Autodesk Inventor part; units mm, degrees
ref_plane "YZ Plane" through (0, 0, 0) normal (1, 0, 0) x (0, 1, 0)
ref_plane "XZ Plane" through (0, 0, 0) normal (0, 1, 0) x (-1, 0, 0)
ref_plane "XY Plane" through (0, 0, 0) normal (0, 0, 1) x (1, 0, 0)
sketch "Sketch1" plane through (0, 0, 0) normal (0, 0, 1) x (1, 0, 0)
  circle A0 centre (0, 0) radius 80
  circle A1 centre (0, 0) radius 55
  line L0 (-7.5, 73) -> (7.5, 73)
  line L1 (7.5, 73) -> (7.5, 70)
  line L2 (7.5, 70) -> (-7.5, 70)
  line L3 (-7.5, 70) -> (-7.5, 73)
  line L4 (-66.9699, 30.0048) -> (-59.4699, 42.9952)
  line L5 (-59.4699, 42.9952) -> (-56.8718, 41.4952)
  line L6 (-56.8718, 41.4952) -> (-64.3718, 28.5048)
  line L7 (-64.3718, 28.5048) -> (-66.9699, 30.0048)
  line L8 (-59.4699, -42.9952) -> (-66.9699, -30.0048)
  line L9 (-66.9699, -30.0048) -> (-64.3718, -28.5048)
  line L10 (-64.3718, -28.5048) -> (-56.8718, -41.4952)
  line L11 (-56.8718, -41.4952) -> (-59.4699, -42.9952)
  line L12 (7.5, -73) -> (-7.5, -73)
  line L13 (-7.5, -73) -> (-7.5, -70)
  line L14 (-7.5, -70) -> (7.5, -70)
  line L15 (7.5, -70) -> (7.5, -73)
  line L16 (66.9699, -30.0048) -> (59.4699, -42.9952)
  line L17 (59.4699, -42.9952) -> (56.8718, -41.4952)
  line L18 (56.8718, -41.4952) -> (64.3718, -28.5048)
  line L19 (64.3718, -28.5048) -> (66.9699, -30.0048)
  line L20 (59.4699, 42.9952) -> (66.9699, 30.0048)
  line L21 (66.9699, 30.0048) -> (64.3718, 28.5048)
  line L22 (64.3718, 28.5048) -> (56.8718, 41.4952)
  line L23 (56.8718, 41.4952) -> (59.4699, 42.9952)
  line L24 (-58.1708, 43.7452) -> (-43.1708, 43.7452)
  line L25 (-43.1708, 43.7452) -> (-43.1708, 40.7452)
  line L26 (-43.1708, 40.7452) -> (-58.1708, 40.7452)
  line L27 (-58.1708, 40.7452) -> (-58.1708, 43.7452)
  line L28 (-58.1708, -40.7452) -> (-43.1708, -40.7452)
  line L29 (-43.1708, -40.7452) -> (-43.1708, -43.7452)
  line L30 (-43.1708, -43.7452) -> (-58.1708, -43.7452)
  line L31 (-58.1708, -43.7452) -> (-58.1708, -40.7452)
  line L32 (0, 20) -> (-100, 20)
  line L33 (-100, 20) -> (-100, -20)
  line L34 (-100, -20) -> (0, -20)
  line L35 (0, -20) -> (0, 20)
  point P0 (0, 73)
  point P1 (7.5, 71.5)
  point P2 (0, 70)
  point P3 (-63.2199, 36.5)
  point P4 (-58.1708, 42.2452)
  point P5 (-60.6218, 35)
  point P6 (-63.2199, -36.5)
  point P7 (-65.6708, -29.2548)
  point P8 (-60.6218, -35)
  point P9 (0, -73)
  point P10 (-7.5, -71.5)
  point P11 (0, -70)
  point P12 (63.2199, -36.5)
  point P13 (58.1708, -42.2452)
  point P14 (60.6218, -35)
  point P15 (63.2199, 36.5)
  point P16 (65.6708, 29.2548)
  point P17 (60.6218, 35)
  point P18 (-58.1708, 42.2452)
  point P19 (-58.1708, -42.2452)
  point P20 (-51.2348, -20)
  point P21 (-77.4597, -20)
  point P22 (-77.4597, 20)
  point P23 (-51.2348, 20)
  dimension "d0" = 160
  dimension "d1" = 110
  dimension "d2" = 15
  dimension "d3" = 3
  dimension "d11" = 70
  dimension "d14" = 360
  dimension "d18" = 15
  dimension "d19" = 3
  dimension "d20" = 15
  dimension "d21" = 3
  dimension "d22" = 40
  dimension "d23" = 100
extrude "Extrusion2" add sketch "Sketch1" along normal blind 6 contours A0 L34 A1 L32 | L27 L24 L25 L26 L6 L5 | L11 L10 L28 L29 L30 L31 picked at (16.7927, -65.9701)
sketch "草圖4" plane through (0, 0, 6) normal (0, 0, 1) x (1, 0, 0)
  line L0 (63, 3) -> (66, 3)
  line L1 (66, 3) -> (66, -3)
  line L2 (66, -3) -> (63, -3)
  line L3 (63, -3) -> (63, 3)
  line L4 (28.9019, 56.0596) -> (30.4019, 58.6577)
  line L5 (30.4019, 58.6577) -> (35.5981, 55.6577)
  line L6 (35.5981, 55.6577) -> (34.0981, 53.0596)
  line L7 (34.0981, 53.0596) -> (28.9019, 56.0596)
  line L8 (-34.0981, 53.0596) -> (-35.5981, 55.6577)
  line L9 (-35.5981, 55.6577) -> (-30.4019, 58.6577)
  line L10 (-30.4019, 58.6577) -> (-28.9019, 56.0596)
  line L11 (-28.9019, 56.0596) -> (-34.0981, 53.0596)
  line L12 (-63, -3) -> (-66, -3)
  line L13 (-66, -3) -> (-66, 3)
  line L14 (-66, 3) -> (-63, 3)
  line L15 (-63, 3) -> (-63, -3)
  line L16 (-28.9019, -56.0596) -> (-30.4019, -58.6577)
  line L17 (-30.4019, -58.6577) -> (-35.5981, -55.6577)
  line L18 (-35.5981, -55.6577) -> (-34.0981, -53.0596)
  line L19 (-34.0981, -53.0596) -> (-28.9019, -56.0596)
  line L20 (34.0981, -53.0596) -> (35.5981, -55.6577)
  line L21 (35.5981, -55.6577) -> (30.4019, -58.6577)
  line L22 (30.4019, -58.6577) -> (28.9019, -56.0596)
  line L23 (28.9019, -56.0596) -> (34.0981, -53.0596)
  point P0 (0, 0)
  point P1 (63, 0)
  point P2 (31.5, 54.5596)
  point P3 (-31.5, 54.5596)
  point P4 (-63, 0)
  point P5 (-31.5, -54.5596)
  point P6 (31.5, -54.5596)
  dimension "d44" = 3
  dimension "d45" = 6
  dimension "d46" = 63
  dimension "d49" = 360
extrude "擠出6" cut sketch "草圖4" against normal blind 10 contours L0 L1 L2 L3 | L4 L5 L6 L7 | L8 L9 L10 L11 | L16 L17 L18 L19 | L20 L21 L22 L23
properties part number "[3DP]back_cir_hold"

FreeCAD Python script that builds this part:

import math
import FreeCAD as App
import Part
import Sketcher
Q = App.Units.Quantity


def add_polygon(sketch, points):
    """Adds a closed chain of lines whose ends are joined by coincident constraints."""
    first, n = sketch.GeometryCount, len(points)
    for a, b in zip(points, points[1:] + points[:1]):
        sketch.addGeometry(Part.LineSegment(App.Vector(*a, 0), App.Vector(*b, 0)), False)
    for i in range(n):
        sketch.addConstraint(Sketcher.Constraint("Coincident", first + i, 2, first + (i + 1) % n, 1))

doc = App.newDocument("Part")
params = doc.addObject("Spreadsheet::Sheet", "Params")
for row, (alias, value) in enumerate([
    ("sketch1_radius", "80 mm"),
    ("sketch1_radius2", "55 mm"),
    ("sketch1_width", "15 mm"),
    ("sketch1_height", "3 mm"),
    ("sketch1_length", "15 mm"),
    ("pad1_length", "6 mm"),
    ("sketch2_width", "3 mm"),
    ("sketch2_height", "6 mm"),
    ("sketch2_length", "3 mm"),
    ("sketch2_length2", "6 mm"),
    ("pocket1_length", "10 mm"),
], start=1):
    params.set(f"A{row}", alias)
    params.set(f"B{row}", "=" + value)
    params.setAlias(f"B{row}", alias)

body = doc.addObject("PartDesign::Body", "Body")

sketch1 = body.newObject("Sketcher::SketchObject", "Sketch")
sketch1.AttachmentSupport = (doc.getObject("XY_Plane"), [""])
sketch1.MapMode = "FlatFace"
sketch1.addGeometry(Part.ArcOfCircle(Part.Circle(App.Vector(0, 0, 0), App.Vector(0, 0, 1), 80), math.radians(-166), math.radians(166)), False)
sketch1.addGeometry(Part.LineSegment(App.Vector(-77.5, 20, 0), App.Vector(-51.2, 20, 0)), False)
sketch1.addGeometry(Part.ArcOfCircle(Part.Circle(App.Vector(0, 0, 0), App.Vector(0, 0, 1), 55), math.radians(-159), math.radians(159)), False)
sketch1.addGeometry(Part.LineSegment(App.Vector(-51.2, -20, 0), App.Vector(-77.5, -20, 0)), False)
add_polygon(sketch1, [(-59.5, -43), (-67, -30), (-64.4, -28.5), (-56.9, -41.5)])
add_polygon(sketch1, [(7.5, -70), (7.5, -73), (-7.5, -73), (-7.5, -70)])
add_polygon(sketch1, [(64.4, -28.5), (67, -30), (59.5, -43), (56.9, -41.5)])
add_polygon(sketch1, [(-64.4, 28.5), (-67, 30), (-59.5, 43), (-56.9, 41.5)])
add_polygon(sketch1, [(56.9, 41.5), (59.5, 43), (67, 30), (64.4, 28.5)])
add_polygon(sketch1, [(-7.5, 70), (-7.5, 73), (7.5, 73), (7.5, 70)])
sketch1.addConstraint([
    Sketcher.Constraint("Coincident", 0, 2, 1, 1),
    Sketcher.Constraint("Coincident", 1, 2, 2, 2),
    Sketcher.Constraint("Coincident", 2, 1, 3, 1),
    Sketcher.Constraint("Coincident", 3, 2, 0, 1),
    Sketcher.Constraint("Horizontal", 1),
    Sketcher.Constraint("Horizontal", 3),
    Sketcher.Constraint("Vertical", 8),
    Sketcher.Constraint("Horizontal", 9),
    Sketcher.Constraint("Vertical", 10),
    Sketcher.Constraint("Horizontal", 11),
    Sketcher.Constraint("Vertical", 24),
    Sketcher.Constraint("Horizontal", 25),
    Sketcher.Constraint("Vertical", 26),
    Sketcher.Constraint("Horizontal", 27),
    Sketcher.Constraint("Coincident", 0, 3, -1, 1),
    Sketcher.Constraint("Coincident", 2, 3, -1, 1),
    Sketcher.Constraint("Symmetric", 12, 2, 16, 2, -1, 1),
    Sketcher.Constraint("Symmetric", 13, 2, 17, 2, -1, 1),
    Sketcher.Constraint("Symmetric", 14, 2, 18, 2, -1, 1),
    Sketcher.Constraint("Symmetric", 15, 2, 19, 2, -1, 1),
    Sketcher.Constraint("Symmetric", 7, 2, 20, 2, -1, 1),
    Sketcher.Constraint("Symmetric", 4, 2, 21, 2, -1, 1),
    Sketcher.Constraint("Symmetric", 5, 2, 22, 2, -1, 1),
    Sketcher.Constraint("Symmetric", 6, 2, 23, 2, -1, 1),
    Sketcher.Constraint("Symmetric", 8, 2, 24, 2, -1, 1),
    Sketcher.Constraint("Symmetric", 10, 2, 26, 2, -1, 1),
    Sketcher.Constraint("Symmetric", 4, 2, 12, 2, -2),
    Sketcher.Constraint("Symmetric", 7, 2, 13, 2, -2),
    Sketcher.Constraint("Symmetric", 6, 2, 14, 2, -2),
    Sketcher.Constraint("Symmetric", 5, 2, 15, 2, -2),
    Sketcher.Constraint("Perpendicular", 4, 5),
    Sketcher.Constraint("Perpendicular", 5, 6),
    Sketcher.Constraint("Perpendicular", 6, 7),
    Sketcher.Constraint("Vertical", 1, 2, 2, 1),
    Sketcher.Constraint("Vertical", 10, 2, 24, 2),
    Sketcher.Constraint("Radius", 0, Q("80 mm")),
    Sketcher.Constraint("Radius", 2, Q("55 mm")),
    Sketcher.Constraint("DistanceX", 9, 2, 9, 1, Q("15 mm")),
    Sketcher.Constraint("DistanceY", 8, 2, 8, 1, Q("3 mm")),
    Sketcher.Constraint("Distance", 4, Q("15 mm")),
    Sketcher.Constraint("Distance", 5, Q("3 mm")),
    Sketcher.Constraint("DistanceY", 10, 2, -1, 1, Q("70 mm")),
    Sketcher.Constraint("DistanceY", 2, 1, 1, 2, Q("40 mm")),
    Sketcher.Constraint("DistanceY", 14, 2, 22, 2, Q("70 mm")),
    Sketcher.Constraint("Angle", 4, Q("120 deg")),
    Sketcher.Constraint("DistanceX", 4, 2, -1, 1, Q("66.97 mm")),
])
sketch1.setExpression("Constraints[59]", "Params.sketch1_radius")
sketch1.setExpression("Constraints[60]", "Params.sketch1_radius2")
sketch1.setExpression("Constraints[61]", "Params.sketch1_width")
sketch1.setExpression("Constraints[62]", "Params.sketch1_height")
sketch1.setExpression("Constraints[63]", "Params.sketch1_length")
pad1 = body.newObject("PartDesign::Pad", "Pad")
pad1.Profile = sketch1
pad1.setExpression("Length", "Params.pad1_length")

sketch2 = body.newObject("Sketcher::SketchObject", "Sketch001")
sketch2.AttachmentSupport = (doc.getObject("XY_Plane"), [""])
sketch2.MapMode = "FlatFace"
sketch2.AttachmentOffset = App.Placement(App.Vector(0, 0, 6), App.Rotation())
add_polygon(sketch2, [(66, 3), (63, 3), (63, -3), (66, -3)])
add_polygon(sketch2, [(30.4, 58.7), (28.9, 56.1), (34.1, 53.1), (35.6, 55.7)])
add_polygon(sketch2, [(-35.6, 55.7), (-34.1, 53.1), (-28.9, 56.1), (-30.4, 58.7)])
add_polygon(sketch2, [(-30.4, -58.7), (-28.9, -56.1), (-34.1, -53.1), (-35.6, -55.7)])
add_polygon(sketch2, [(35.6, -55.7), (34.1, -53.1), (28.9, -56.1), (30.4, -58.7)])
sketch2.addConstraint([
    Sketcher.Constraint("Horizontal", 0),
    Sketcher.Constraint("Vertical", 1),
    Sketcher.Constraint("Horizontal", 2),
    Sketcher.Constraint("Vertical", 3),
    Sketcher.Constraint("Symmetric", 4, 2, 12, 2, -1, 1),
    Sketcher.Constraint("Symmetric", 5, 2, 13, 2, -1, 1),
    Sketcher.Constraint("Symmetric", 6, 2, 14, 2, -1, 1),
    Sketcher.Constraint("Symmetric", 7, 2, 15, 2, -1, 1),
    Sketcher.Constraint("Symmetric", 8, 2, 16, 2, -1, 1),
    Sketcher.Constraint("Symmetric", 9, 2, 17, 2, -1, 1),
    Sketcher.Constraint("Symmetric", 10, 2, 18, 2, -1, 1),
    Sketcher.Constraint("Symmetric", 11, 2, 19, 2, -1, 1),
    Sketcher.Constraint("Symmetric", 5, 2, 8, 2, -2),
    Sketcher.Constraint("Symmetric", 4, 2, 9, 2, -2),
    Sketcher.Constraint("Symmetric", 7, 2, 10, 2, -2),
    Sketcher.Constraint("Symmetric", 6, 2, 11, 2, -2),
    Sketcher.Constraint("Perpendicular", 4, 5),
    Sketcher.Constraint("Perpendicular", 5, 6),
    Sketcher.Constraint("Perpendicular", 6, 7),
    Sketcher.Constraint("DistanceX", 0, 2, 0, 1, Q("3 mm")),
    Sketcher.Constraint("DistanceY", 1, 2, 1, 1, Q("6 mm")),
    Sketcher.Constraint("Distance", 4, Q("3 mm")),
    Sketcher.Constraint("Distance", 5, Q("6 mm")),
    Sketcher.Constraint("DistanceX", -1, 1, 0, 2, Q("63 mm")),
    Sketcher.Constraint("DistanceY", -1, 1, 0, 2, Q("3 mm")),
    Sketcher.Constraint("DistanceY", 5, 2, 4, 2, Q("3 mm")),
    Sketcher.Constraint("DistanceX", 8, 2, 4, 2, Q("63 mm")),
    Sketcher.Constraint("DistanceY", -1, 1, 4, 2, Q("56.0596 mm")),
])
sketch2.setExpression("Constraints[39]", "Params.sketch2_width")
sketch2.setExpression("Constraints[40]", "Params.sketch2_height")
sketch2.setExpression("Constraints[41]", "Params.sketch2_length")
sketch2.setExpression("Constraints[42]", "Params.sketch2_length2")
pocket1 = body.newObject("PartDesign::Pocket", "Pocket")
pocket1.Profile = sketch2
pocket1.setExpression("Length", "Params.pocket1_length")

doc.recompute()
